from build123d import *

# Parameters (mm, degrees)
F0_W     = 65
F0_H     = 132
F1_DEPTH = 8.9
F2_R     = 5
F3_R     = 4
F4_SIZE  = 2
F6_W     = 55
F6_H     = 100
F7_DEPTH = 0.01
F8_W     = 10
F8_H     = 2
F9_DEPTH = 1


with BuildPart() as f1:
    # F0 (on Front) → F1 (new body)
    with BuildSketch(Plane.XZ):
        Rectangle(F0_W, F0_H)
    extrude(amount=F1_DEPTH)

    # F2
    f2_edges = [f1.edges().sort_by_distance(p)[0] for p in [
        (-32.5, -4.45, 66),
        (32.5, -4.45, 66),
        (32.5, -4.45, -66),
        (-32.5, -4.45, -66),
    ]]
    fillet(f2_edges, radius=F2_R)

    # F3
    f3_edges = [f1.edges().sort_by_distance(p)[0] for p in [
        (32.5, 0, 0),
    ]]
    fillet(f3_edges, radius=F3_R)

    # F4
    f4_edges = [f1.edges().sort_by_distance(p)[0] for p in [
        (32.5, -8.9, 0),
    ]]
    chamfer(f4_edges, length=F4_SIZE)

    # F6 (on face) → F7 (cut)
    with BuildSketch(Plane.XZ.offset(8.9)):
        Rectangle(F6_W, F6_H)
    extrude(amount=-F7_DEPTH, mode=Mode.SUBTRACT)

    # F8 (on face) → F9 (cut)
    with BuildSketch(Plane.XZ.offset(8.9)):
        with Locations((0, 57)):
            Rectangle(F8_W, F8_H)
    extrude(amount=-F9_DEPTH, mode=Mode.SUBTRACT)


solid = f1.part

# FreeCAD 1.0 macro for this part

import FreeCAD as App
import Part
import Sketcher
Q = App.Units.Quantity


def edges_at(feature, points):
    """Names of the edges that pass closest to the given points."""
    edges = feature.Shape.Edges
    near = lambda p: min(range(len(edges)), key=lambda i: edges[i].distToShape(Part.Vertex(*p))[0])
    return sorted({f"Edge{near(p) + 1}" for p in points})

doc = App.newDocument("Part")
body = doc.addObject("PartDesign::Body", "Body")

# Sketch on XZ plane
sketch1 = body.newObject("Sketcher::SketchObject", "Sketch")
sketch1.AttachmentSupport = (doc.getObject("XZ_Plane"), [""])
sketch1.MapMode = "FlatFace"
sketch1.addGeometry([
    Part.LineSegment(App.Vector(-32, 66, 0), App.Vector(-32, -66, 0)),
    Part.LineSegment(App.Vector(-32, -66, 0), App.Vector(32, -66, 0)),
    Part.LineSegment(App.Vector(32, -66, 0), App.Vector(32, 66, 0)),
    Part.LineSegment(App.Vector(32, 66, 0), App.Vector(-32, 66, 0)),
], False)
sketch1.addConstraint([
    Sketcher.Constraint("Coincident", 0, 2, 1, 1),
    Sketcher.Constraint("Coincident", 1, 2, 2, 1),
    Sketcher.Constraint("Coincident", 2, 2, 3, 1),
    Sketcher.Constraint("Coincident", 3, 2, 0, 1),
    Sketcher.Constraint("Vertical", 0),
    Sketcher.Constraint("Horizontal", 1),
    Sketcher.Constraint("Vertical", 2),
    Sketcher.Constraint("Horizontal", 3),
    Sketcher.Constraint("Symmetric", 0, 2, 2, 2, -1, 1),
    Sketcher.Constraint("DistanceX", 1, 1, 1, 2, Q("65 mm")),
    Sketcher.Constraint("DistanceY", 0, 2, 0, 1, Q("132 mm")),
])
pad1 = body.newObject("PartDesign::Pad", "Pad")
pad1.Profile = sketch1
pad1.Length = 8.9
doc.recompute()

fillet = body.newObject("PartDesign::Fillet", "Fillet")
fillet.Base = (pad1, edges_at(pad1, [
    (-32.5, -4.45, 66),
    (32.5, -4.45, 66),
    (32.5, -4.45, -66),
    (-32.5, -4.45, -66),
]))
fillet.Radius = 5
doc.recompute()

fillet2 = body.newObject("PartDesign::Fillet", "Fillet001")
fillet2.Base = (fillet, edges_at(fillet, [(32.5, 0, 0)]))
fillet2.Radius = 4
doc.recompute()

chamfer = body.newObject("PartDesign::Chamfer", "Chamfer")
chamfer.Base = (fillet2, edges_at(fillet2, [(32.5, -8.9, 0)]))
chamfer.Size = 2

# Sketch on XZ plane
sketch2 = body.newObject("Sketcher::SketchObject", "Sketch001")
sketch2.AttachmentSupport = (doc.getObject("XZ_Plane"), [""])
sketch2.MapMode = "FlatFace"
sketch2.AttachmentOffset = App.Placement(App.Vector(0, 0, 8.9), App.Rotation())
sketch2.addGeometry([
    Part.LineSegment(App.Vector(-28, 50, 0), App.Vector(-28, -50, 0)),
    Part.LineSegment(App.Vector(-28, -50, 0), App.Vector(28, -50, 0)),
    Part.LineSegment(App.Vector(28, -50, 0), App.Vector(28, 50, 0)),
    Part.LineSegment(App.Vector(28, 50, 0), App.Vector(-28, 50, 0)),
], False)
sketch2.addConstraint([
    Sketcher.Constraint("Coincident", 0, 2, 1, 1),
    Sketcher.Constraint("Coincident", 1, 2, 2, 1),
    Sketcher.Constraint("Coincident", 2, 2, 3, 1),
    Sketcher.Constraint("Coincident", 3, 2, 0, 1),
    Sketcher.Constraint("Vertical", 0),
    Sketcher.Constraint("Horizontal", 1),
    Sketcher.Constraint("Vertical", 2),
    Sketcher.Constraint("Horizontal", 3),
    Sketcher.Constraint("Symmetric", 0, 2, 2, 2, -1, 1),
    Sketcher.Constraint("DistanceX", 1, 1, 1, 2, Q("55 mm")),
    Sketcher.Constraint("DistanceY", 0, 2, 0, 1, Q("100 mm")),
])
pocket1 = body.newObject("PartDesign::Pocket", "Pocket")
pocket1.Profile = sketch2
pocket1.Length = 0.01

# Sketch on XZ plane
sketch3 = body.newObject("Sketcher::SketchObject", "Sketch002")
sketch3.AttachmentSupport = (doc.getObject("XZ_Plane"), [""])
sketch3.MapMode = "FlatFace"
sketch3.AttachmentOffset = App.Placement(App.Vector(0, 0, 8.9), App.Rotation())
sketch3.addGeometry([
    Part.LineSegment(App.Vector(-5, 58, 0), App.Vector(-5, 56, 0)),
    Part.LineSegment(App.Vector(-5, 56, 0), App.Vector(5, 56, 0)),
    Part.LineSegment(App.Vector(5, 56, 0), App.Vector(5, 58, 0)),
    Part.LineSegment(App.Vector(5, 58, 0), App.Vector(-5, 58, 0)),
], False)
sketch3.addConstraint([
    Sketcher.Constraint("Coincident", 0, 2, 1, 1),
    Sketcher.Constraint("Coincident", 1, 2, 2, 1),
    Sketcher.Constraint("Coincident", 2, 2, 3, 1),
    Sketcher.Constraint("Coincident", 3, 2, 0, 1),
    Sketcher.Constraint("Vertical", 0),
    Sketcher.Constraint("Horizontal", 1),
    Sketcher.Constraint("Vertical", 2),
    Sketcher.Constraint("Horizontal", 3),
    Sketcher.Constraint("DistanceX", 1, 1, 1, 2, Q("10 mm")),
    Sketcher.Constraint("DistanceY", 0, 2, 0, 1, Q("2 mm")),
    Sketcher.Constraint("DistanceX", 0, 2, -1, 1, Q("5 mm")),
    Sketcher.Constraint("DistanceY", -1, 1, 0, 2, Q("56 mm")),
])
pocket2 = body.newObject("PartDesign::Pocket", "Pocket001")
pocket2.Profile = sketch3
pocket2.Length = 1

doc.recompute()
